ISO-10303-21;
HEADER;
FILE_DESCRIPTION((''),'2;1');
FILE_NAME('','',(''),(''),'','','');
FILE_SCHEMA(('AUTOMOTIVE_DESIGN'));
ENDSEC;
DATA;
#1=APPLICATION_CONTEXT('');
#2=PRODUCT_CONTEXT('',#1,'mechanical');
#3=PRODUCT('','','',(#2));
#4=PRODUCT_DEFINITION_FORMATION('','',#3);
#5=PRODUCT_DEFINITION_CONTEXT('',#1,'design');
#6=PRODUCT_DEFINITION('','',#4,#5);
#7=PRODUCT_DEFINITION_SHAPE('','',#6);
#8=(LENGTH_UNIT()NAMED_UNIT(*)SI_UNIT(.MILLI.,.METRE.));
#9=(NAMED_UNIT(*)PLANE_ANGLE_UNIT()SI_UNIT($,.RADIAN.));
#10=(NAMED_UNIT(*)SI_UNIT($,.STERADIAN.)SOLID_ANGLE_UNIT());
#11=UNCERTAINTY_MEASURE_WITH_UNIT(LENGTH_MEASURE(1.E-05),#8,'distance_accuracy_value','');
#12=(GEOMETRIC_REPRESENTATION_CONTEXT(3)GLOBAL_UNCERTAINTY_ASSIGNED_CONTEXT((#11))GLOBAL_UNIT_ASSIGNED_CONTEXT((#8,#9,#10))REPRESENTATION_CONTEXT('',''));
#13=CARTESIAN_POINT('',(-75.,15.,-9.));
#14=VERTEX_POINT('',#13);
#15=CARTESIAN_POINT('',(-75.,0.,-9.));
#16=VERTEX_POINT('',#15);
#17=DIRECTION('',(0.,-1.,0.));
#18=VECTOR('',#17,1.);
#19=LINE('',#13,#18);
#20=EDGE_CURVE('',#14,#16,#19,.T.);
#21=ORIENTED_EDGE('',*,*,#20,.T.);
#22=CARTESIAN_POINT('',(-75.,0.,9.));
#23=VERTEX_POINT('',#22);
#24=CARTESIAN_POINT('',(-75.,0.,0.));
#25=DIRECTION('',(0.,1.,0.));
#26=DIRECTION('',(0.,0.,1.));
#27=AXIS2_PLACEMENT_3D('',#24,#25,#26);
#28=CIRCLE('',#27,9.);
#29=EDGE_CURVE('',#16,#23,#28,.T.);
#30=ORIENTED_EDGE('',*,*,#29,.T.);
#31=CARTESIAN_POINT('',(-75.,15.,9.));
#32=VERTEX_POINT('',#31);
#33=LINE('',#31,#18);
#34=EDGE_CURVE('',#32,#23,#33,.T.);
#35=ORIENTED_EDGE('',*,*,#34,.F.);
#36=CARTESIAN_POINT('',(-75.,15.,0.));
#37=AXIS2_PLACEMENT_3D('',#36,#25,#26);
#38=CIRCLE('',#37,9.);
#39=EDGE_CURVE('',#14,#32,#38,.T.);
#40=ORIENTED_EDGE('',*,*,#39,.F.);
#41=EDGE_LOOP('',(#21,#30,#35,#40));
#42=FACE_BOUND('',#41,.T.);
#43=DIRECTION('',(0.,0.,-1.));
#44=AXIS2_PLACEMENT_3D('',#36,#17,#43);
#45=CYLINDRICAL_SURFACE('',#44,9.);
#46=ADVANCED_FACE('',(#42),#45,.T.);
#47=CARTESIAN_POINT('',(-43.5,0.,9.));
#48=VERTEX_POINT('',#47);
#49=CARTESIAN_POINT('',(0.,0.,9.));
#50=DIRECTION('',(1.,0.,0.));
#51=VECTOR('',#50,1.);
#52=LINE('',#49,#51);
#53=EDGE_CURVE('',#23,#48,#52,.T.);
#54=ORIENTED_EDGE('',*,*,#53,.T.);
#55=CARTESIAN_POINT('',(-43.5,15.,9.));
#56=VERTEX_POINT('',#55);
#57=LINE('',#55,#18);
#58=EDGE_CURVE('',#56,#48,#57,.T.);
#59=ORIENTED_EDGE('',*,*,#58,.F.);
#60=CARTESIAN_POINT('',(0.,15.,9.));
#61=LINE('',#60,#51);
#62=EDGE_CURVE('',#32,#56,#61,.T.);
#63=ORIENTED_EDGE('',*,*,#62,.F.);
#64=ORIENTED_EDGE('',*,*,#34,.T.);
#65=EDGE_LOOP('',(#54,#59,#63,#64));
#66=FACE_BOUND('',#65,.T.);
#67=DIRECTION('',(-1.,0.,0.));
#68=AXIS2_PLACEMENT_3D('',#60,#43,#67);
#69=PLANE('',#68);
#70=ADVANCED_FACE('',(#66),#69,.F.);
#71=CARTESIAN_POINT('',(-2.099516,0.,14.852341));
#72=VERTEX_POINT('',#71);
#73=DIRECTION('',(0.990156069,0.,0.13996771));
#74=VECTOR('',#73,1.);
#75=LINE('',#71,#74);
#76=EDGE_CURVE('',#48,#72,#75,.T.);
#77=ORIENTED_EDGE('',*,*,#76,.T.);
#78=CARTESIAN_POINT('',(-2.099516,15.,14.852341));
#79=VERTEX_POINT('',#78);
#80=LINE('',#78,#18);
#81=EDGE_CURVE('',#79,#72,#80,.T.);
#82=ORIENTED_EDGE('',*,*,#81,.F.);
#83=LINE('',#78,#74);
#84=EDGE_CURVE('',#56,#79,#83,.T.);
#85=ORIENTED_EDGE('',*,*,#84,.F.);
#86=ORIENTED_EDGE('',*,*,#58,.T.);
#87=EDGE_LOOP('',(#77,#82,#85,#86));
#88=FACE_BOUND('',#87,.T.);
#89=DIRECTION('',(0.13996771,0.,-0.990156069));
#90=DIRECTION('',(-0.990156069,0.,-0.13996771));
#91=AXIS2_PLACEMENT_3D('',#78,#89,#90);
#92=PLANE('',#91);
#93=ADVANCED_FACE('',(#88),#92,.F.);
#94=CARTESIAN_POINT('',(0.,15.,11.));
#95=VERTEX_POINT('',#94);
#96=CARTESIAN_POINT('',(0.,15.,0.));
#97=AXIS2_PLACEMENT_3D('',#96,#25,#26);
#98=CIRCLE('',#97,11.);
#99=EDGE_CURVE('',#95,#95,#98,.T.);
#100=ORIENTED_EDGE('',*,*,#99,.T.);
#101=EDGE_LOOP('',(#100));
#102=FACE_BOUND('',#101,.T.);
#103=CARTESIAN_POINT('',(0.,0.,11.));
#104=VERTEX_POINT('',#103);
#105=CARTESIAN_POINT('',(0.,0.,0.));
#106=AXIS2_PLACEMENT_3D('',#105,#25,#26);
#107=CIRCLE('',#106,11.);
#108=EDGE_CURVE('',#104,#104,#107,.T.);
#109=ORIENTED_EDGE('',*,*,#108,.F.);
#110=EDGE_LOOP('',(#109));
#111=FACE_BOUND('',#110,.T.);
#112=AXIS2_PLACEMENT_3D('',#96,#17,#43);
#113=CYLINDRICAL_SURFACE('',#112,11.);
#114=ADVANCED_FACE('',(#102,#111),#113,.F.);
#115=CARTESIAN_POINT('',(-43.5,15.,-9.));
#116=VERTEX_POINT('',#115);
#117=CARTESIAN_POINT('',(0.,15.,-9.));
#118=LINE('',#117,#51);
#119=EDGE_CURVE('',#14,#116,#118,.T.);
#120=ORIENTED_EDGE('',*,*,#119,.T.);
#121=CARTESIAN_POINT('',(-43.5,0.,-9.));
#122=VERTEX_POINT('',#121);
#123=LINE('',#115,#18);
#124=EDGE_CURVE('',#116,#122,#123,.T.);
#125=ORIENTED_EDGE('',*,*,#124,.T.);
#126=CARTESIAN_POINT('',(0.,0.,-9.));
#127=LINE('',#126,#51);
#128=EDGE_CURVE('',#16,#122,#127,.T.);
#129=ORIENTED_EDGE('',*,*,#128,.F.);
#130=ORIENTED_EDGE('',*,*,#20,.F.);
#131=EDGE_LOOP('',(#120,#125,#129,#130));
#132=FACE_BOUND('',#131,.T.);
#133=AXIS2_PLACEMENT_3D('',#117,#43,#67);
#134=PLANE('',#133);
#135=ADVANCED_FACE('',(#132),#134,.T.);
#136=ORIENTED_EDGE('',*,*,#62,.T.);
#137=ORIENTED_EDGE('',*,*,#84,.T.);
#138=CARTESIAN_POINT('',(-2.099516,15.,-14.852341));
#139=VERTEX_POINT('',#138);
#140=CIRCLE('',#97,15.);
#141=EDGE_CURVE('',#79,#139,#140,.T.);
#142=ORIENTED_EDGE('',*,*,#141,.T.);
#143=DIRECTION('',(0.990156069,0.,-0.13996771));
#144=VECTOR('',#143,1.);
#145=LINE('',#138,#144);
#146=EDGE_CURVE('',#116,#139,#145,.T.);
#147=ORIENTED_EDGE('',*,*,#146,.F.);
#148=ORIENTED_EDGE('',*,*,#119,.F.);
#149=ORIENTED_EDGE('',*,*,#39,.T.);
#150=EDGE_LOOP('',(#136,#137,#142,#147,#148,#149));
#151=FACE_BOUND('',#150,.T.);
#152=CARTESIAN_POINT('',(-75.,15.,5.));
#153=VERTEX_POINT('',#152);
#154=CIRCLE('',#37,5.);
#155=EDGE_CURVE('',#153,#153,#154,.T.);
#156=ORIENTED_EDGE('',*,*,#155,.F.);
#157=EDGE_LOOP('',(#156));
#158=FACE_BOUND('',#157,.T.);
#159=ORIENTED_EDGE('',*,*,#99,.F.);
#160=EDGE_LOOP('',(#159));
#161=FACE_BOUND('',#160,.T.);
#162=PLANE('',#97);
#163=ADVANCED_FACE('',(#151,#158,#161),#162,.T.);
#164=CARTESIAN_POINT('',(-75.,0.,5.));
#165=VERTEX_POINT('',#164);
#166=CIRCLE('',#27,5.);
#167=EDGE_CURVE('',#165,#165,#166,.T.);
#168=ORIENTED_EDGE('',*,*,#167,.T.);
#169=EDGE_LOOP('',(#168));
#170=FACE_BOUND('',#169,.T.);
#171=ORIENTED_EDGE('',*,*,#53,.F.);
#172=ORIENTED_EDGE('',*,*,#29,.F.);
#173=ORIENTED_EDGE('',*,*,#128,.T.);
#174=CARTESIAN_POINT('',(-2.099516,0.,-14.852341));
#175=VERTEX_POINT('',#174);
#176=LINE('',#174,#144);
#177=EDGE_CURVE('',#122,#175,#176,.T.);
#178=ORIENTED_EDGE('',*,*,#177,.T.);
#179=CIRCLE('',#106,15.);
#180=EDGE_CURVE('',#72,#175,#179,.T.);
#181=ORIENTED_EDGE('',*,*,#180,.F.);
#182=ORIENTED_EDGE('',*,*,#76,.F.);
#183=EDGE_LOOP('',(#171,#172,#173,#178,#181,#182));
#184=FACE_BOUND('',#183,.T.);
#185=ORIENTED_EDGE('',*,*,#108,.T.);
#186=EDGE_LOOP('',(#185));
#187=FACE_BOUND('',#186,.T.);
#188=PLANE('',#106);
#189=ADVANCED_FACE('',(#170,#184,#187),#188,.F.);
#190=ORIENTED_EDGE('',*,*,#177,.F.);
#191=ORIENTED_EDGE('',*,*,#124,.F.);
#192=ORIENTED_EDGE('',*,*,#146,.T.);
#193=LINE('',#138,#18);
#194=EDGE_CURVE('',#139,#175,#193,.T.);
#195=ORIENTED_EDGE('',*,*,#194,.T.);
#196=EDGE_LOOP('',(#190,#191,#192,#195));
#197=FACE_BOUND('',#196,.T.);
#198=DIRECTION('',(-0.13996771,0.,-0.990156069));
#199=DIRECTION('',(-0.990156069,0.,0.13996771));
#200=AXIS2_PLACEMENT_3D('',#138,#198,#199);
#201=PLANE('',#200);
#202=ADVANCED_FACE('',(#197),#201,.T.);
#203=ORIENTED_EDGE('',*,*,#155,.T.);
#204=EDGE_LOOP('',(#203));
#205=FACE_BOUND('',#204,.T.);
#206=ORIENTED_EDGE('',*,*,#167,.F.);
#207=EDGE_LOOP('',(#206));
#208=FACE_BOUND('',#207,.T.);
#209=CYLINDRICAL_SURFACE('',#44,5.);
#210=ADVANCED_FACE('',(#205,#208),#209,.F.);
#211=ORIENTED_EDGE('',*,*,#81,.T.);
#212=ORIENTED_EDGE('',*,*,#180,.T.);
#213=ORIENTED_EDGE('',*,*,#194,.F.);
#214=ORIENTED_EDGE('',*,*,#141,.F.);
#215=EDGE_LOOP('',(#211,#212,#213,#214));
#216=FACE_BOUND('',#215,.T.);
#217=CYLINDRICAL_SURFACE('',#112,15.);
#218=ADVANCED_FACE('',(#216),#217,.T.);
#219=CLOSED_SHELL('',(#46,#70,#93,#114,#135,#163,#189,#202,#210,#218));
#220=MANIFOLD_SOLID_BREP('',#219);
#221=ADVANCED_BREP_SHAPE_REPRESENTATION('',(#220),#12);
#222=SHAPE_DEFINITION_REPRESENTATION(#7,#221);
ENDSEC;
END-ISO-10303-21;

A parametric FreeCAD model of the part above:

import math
import FreeCAD as App
import Part
import Sketcher

V = App.Vector

doc = App.newDocument("Part")
body = doc.addObject("PartDesign::Body", "Body")

# Sketch on XZ plane
sketch1 = body.newObject("Sketcher::SketchObject", "Sketch")
sketch1.AttachmentSupport = (doc.getObject("XZ_Plane"), [""])
sketch1.MapMode = "FlatFace"
sketch1.addGeometry([
    Part.LineSegment(V(-44, -9, 0), V(-75, -9, 0)),  # 0
    Part.ArcOfCircle(Part.Circle(V(-75, 0, 0), V(0, 0, 1), 9), math.radians(90), math.radians(270)),  # 1
    Part.LineSegment(V(-75, 9, 0), V(-44, 9, 0)),  # 2
    Part.LineSegment(V(-44, 9, 0), V(-2, 15, 0)),  # 3
    Part.ArcOfCircle(Part.Circle(V(0, 0, 0), V(0, 0, 1), 15), math.radians(-98), math.radians(98)),  # 4
    Part.LineSegment(V(-2, -15, 0), V(-44, -9, 0)),  # 5
    Part.Circle(V(-75, 0, 0), V(0, 0, 1), 5),  # 6
    Part.Circle(V(0, 0, 0), V(0, 0, 1), 11),  # 7
], False)
sketch1.addConstraint([
    Sketcher.Constraint("Tangent", 0, 2, 1, 2),
    Sketcher.Constraint("Tangent", 1, 1, 2, 1),
    Sketcher.Constraint("Coincident", 2, 2, 3, 1),
    Sketcher.Constraint("Tangent", 3, 2, 4, 2),
    Sketcher.Constraint("Tangent", 4, 1, 5, 1),
    Sketcher.Constraint("Coincident", 5, 2, 0, 1),
    Sketcher.Constraint("Horizontal", 0),
    Sketcher.Constraint("Horizontal", 2),
    Sketcher.Constraint("Coincident", 4, 3, -1, 1),
    Sketcher.Constraint("Coincident", 7, 3, -1, 1),
    Sketcher.Constraint("Coincident", 6, 3, 1, 3),
    Sketcher.Constraint("Symmetric", 2, 2, 5, 2, -1),
    Sketcher.Constraint("Diameter", 6, 10.0),
    Sketcher.Constraint("Diameter", 7, 22.0),
    Sketcher.Constraint("Radius", 1, 9.0),
    Sketcher.Constraint("Radius", 4, 15.0),
    Sketcher.Constraint("DistanceX", 0, 2, 0, 1, 31.5),
    Sketcher.Constraint("DistanceX", 1, 3, -1, 1, 75.0),
])
pad1 = body.newObject("PartDesign::Pad", "Pad")
pad1.Profile = sketch1
pad1.Length = 15
pad1.Reversed = True

doc.recompute()
